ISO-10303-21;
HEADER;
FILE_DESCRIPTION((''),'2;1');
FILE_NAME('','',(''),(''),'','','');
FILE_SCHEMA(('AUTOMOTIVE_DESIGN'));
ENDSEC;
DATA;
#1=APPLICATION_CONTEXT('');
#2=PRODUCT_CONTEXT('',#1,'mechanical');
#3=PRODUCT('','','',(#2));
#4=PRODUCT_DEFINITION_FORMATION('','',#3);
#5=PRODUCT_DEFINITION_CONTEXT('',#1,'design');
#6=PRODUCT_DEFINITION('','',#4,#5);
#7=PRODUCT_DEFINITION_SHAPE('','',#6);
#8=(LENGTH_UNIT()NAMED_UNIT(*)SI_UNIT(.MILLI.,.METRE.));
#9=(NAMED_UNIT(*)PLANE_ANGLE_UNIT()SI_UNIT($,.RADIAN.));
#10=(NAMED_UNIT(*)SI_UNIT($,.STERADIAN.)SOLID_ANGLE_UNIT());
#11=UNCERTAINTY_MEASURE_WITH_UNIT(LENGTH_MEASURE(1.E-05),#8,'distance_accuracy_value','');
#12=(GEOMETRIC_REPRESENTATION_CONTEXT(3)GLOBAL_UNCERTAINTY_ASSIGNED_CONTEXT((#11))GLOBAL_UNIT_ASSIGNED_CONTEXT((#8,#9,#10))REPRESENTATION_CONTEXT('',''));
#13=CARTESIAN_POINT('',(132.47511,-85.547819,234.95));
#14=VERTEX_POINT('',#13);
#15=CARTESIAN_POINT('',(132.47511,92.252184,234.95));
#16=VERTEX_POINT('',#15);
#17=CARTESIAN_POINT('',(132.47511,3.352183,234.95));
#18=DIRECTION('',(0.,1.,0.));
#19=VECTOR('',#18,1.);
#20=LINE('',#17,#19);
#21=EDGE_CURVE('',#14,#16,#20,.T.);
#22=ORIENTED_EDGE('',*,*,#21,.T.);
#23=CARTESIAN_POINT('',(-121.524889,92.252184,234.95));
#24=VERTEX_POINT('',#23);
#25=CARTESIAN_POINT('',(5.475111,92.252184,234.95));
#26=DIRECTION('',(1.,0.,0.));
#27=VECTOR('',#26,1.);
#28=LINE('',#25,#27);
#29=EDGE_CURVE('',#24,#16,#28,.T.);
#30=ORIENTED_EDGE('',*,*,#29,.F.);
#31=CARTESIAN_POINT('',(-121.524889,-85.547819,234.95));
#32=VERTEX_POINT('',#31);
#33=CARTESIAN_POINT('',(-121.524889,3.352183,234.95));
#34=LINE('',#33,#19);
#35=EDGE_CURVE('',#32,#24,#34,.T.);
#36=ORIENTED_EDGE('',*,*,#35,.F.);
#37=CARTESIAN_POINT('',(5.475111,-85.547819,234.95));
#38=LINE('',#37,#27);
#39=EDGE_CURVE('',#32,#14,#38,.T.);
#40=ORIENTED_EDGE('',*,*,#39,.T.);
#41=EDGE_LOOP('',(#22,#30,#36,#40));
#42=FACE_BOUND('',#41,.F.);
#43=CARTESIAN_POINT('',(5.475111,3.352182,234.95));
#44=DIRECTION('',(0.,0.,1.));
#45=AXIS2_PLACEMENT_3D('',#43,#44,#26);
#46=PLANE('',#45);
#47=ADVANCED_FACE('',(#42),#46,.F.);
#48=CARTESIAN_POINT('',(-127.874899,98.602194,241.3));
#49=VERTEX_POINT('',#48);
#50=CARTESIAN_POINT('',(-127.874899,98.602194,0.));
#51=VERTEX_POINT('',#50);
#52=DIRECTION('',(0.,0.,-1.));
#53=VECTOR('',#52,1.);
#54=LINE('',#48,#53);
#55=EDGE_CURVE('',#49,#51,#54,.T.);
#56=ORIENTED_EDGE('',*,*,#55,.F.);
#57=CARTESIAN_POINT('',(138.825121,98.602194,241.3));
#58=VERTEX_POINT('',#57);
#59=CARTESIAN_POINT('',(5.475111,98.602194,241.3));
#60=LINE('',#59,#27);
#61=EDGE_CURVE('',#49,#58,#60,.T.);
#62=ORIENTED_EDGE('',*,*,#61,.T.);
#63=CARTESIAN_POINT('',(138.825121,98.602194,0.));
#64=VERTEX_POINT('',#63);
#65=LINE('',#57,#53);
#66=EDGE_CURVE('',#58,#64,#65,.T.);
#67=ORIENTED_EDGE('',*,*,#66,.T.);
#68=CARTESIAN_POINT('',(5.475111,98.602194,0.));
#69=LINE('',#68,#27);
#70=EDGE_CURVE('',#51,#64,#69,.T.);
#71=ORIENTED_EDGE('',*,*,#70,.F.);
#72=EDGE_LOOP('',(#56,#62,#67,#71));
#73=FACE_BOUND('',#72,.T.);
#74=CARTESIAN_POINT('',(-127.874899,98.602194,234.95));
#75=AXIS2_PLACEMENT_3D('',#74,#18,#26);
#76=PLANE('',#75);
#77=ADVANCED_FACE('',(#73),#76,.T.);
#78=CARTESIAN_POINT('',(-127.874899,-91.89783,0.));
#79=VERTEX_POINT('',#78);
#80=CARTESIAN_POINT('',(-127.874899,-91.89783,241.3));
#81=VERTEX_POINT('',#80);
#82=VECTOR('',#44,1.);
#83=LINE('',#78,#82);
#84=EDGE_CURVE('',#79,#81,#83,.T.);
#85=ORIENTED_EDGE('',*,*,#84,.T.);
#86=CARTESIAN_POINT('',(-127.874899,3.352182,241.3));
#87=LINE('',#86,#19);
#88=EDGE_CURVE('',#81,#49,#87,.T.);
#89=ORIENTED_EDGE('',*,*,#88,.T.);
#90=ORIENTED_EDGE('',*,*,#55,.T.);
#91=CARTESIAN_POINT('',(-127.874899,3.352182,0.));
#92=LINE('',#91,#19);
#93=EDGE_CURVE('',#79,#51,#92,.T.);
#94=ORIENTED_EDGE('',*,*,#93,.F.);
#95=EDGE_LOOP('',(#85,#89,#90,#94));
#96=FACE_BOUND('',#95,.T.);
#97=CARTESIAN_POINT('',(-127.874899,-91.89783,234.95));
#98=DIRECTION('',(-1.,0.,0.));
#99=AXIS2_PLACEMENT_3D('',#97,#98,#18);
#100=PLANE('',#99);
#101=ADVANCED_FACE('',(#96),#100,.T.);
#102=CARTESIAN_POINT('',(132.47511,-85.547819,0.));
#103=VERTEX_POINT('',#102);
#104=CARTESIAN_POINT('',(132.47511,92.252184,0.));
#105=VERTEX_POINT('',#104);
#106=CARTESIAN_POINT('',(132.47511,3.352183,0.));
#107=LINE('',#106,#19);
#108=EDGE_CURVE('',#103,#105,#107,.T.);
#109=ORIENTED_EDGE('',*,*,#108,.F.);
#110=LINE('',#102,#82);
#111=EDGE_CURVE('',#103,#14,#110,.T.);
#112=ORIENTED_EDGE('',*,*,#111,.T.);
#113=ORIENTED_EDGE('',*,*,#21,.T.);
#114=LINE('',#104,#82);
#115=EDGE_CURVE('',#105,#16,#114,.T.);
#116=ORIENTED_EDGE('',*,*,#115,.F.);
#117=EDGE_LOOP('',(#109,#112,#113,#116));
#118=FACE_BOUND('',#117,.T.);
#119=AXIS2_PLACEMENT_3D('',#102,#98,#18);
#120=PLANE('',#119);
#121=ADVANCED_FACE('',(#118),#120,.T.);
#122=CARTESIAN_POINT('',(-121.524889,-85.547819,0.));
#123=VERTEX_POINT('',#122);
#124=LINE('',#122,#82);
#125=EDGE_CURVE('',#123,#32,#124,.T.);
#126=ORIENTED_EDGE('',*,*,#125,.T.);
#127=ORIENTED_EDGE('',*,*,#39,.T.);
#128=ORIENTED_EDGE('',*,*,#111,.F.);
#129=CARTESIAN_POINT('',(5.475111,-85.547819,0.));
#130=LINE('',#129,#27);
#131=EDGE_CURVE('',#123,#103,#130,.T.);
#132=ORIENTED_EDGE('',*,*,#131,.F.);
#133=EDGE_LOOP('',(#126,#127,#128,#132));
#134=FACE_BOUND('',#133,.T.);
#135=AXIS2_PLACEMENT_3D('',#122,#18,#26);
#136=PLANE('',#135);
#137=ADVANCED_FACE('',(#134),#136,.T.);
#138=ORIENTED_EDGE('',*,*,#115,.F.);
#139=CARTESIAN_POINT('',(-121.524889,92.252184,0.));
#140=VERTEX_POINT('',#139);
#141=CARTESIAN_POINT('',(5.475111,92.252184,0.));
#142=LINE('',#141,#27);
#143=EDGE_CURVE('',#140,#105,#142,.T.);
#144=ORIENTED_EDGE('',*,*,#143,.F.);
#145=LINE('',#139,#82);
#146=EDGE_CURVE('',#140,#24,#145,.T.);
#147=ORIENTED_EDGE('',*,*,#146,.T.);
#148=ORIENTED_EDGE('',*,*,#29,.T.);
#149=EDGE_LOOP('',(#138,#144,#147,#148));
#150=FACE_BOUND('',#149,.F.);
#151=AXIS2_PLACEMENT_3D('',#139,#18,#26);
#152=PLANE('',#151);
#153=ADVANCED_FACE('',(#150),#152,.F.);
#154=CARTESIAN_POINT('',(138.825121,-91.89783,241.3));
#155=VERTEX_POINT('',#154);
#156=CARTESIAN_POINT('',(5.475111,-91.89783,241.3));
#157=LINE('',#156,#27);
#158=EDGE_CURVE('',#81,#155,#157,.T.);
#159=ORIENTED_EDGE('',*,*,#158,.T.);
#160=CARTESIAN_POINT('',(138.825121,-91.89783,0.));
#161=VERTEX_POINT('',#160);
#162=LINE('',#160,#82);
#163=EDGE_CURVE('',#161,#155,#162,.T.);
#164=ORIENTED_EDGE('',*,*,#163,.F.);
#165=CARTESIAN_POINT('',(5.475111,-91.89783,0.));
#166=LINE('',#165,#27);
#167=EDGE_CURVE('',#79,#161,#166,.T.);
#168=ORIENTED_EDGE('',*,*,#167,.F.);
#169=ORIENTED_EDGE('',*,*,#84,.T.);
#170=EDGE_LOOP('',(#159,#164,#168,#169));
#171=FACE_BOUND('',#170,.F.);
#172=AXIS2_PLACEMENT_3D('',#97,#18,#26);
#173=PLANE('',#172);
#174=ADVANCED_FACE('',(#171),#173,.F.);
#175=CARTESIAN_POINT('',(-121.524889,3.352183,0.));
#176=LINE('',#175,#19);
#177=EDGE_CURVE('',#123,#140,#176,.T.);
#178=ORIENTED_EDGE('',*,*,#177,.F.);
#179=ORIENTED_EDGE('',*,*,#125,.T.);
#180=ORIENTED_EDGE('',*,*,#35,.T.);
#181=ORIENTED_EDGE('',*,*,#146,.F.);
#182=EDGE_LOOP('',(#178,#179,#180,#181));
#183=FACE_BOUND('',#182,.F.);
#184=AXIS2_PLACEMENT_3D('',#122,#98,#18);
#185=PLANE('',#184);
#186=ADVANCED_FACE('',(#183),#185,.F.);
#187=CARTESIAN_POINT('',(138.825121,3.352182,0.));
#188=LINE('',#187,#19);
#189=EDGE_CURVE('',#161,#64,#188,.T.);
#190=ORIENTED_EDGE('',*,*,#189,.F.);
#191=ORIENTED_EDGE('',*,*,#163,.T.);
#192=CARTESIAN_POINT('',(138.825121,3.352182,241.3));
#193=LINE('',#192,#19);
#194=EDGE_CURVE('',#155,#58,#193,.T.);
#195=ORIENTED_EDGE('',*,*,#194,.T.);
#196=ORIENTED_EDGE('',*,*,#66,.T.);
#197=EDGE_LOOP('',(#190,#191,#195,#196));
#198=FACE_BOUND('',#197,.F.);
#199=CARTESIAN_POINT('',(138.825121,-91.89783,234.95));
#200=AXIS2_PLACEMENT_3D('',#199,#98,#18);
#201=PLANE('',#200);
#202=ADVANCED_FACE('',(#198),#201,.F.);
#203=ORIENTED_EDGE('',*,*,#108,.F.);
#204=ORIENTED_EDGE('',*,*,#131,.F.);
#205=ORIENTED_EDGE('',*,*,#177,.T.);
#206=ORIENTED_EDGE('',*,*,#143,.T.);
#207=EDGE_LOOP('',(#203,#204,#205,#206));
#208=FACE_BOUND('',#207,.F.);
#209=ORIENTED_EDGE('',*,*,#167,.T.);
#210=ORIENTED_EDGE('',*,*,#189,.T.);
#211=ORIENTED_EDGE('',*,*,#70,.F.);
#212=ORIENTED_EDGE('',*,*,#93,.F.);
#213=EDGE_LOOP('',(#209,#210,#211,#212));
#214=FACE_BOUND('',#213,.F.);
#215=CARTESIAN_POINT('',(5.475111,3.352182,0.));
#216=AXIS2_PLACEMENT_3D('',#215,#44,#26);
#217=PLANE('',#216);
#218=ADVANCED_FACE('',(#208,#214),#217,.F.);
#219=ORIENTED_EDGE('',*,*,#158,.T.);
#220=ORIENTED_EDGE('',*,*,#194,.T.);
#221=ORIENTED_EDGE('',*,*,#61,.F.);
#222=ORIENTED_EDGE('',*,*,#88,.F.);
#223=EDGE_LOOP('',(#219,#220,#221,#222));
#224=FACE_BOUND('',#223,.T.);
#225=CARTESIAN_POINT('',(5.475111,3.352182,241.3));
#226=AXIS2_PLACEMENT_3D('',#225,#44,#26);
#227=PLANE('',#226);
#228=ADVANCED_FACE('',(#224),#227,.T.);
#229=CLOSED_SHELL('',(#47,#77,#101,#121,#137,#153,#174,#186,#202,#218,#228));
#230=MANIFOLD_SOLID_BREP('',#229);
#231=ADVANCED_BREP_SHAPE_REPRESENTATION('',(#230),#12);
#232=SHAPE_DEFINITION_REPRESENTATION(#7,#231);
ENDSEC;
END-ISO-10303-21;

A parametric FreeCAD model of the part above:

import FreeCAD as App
import Part
import Sketcher

V = App.Vector
Q = App.Units.Quantity


def add_polygon(sketch, points):
    """Adds a closed chain of lines whose ends are joined by coincident constraints."""
    first, n = sketch.GeometryCount, len(points)
    for a, b in zip(points, points[1:] + points[:1]):
        sketch.addGeometry(Part.LineSegment(App.Vector(*a, 0), App.Vector(*b, 0)), False)
    for i in range(n):
        sketch.addConstraint(Sketcher.Constraint("Coincident", first + i, 2, first + (i + 1) % n, 1))

doc = App.newDocument("Part")
body = doc.addObject("PartDesign::Body", "Body")

# Sketch on XY plane
sketch1 = doc.addObject("Sketcher::SketchObject", "Sketch")
body.addObject(sketch1)
sketch1.AttachmentSupport = (doc.XY_Plane, [""])
sketch1.MapMode = "FlatFace"
add_polygon(sketch1, [(-127.874899, 98.602194), (-127.874899, -91.89783), (138.825121, -91.89783), (138.825121, 98.602194)])  # lines 0-3
add_polygon(sketch1, [(132.47511, -85.547819), (-121.524889, -85.547819), (-121.524889, 92.252184), (132.47511, 92.252184)])  # lines 4-7
sketch1.addConstraint([
    Sketcher.Constraint("Vertical", 0),
    Sketcher.Constraint("Horizontal", 1),
    Sketcher.Constraint("Vertical", 2),
    Sketcher.Constraint("Horizontal", 3),
    Sketcher.Constraint("Horizontal", 4),
    Sketcher.Constraint("Vertical", 5),
    Sketcher.Constraint("Horizontal", 6),
    Sketcher.Constraint("Vertical", 7),
    Sketcher.Constraint("DistanceX", 4, 2, 4, 1, Q("10 in")),
    Sketcher.Constraint("DistanceY", 5, 1, 5, 2, Q("7.0000001 in")),
    Sketcher.Constraint("DistanceX", 1, 1, 1, 2, Q("266.70002 mm")),
    Sketcher.Constraint("DistanceX", 0, 2, -1, 1, Q("127.874899 mm")),
    Sketcher.Constraint("DistanceY", 0, 2, 0, 1, Q("190.500024 mm")),
    Sketcher.Constraint("DistanceY", 0, 2, -1, 1, Q("91.89783 mm")),
    Sketcher.Constraint("DistanceX", 4, 2, -1, 1, Q("121.524889 mm")),
    Sketcher.Constraint("DistanceY", 4, 2, -1, 1, Q("85.547819 mm")),
])
pad1 = doc.addObject("PartDesign::Pad", "Pad")
body.addObject(pad1)
pad1.Profile = sketch1
pad1.Length = Q("9.25 in")

# Sketch on XY plane
sketch2 = doc.addObject("Sketcher::SketchObject", "Sketch001")
body.addObject(sketch2)
sketch2.AttachmentSupport = (doc.XY_Plane, [""])
sketch2.MapMode = "FlatFace"
sketch2.AttachmentOffset = App.Placement(V(0, 0, 9.25 * 25.4), App.Rotation())
add_polygon(sketch2, [(-127.874899, 98.602194), (-127.874899, -91.89783), (138.825121, -91.89783), (138.825121, 98.602194)])  # lines 0-3
sketch2.addConstraint([
    Sketcher.Constraint("Vertical", 0),
    Sketcher.Constraint("Horizontal", 1),
    Sketcher.Constraint("Vertical", 2),
    Sketcher.Constraint("Horizontal", 3),
    Sketcher.Constraint("DistanceX", 1, 1, 1, 2, Q("266.70002 mm")),
    Sketcher.Constraint("DistanceX", 0, 2, -1, 1, Q("127.874899 mm")),
    Sketcher.Constraint("DistanceY", 0, 2, 0, 1, Q("190.500024 mm")),
    Sketcher.Constraint("DistanceY", 0, 2, -1, 1, Q("91.89783 mm")),
])
pad2 = doc.addObject("PartDesign::Pad", "Pad001")
body.addObject(pad2)
pad2.Profile = sketch2
pad2.Length = Q("0.25 in")

doc.recompute()
